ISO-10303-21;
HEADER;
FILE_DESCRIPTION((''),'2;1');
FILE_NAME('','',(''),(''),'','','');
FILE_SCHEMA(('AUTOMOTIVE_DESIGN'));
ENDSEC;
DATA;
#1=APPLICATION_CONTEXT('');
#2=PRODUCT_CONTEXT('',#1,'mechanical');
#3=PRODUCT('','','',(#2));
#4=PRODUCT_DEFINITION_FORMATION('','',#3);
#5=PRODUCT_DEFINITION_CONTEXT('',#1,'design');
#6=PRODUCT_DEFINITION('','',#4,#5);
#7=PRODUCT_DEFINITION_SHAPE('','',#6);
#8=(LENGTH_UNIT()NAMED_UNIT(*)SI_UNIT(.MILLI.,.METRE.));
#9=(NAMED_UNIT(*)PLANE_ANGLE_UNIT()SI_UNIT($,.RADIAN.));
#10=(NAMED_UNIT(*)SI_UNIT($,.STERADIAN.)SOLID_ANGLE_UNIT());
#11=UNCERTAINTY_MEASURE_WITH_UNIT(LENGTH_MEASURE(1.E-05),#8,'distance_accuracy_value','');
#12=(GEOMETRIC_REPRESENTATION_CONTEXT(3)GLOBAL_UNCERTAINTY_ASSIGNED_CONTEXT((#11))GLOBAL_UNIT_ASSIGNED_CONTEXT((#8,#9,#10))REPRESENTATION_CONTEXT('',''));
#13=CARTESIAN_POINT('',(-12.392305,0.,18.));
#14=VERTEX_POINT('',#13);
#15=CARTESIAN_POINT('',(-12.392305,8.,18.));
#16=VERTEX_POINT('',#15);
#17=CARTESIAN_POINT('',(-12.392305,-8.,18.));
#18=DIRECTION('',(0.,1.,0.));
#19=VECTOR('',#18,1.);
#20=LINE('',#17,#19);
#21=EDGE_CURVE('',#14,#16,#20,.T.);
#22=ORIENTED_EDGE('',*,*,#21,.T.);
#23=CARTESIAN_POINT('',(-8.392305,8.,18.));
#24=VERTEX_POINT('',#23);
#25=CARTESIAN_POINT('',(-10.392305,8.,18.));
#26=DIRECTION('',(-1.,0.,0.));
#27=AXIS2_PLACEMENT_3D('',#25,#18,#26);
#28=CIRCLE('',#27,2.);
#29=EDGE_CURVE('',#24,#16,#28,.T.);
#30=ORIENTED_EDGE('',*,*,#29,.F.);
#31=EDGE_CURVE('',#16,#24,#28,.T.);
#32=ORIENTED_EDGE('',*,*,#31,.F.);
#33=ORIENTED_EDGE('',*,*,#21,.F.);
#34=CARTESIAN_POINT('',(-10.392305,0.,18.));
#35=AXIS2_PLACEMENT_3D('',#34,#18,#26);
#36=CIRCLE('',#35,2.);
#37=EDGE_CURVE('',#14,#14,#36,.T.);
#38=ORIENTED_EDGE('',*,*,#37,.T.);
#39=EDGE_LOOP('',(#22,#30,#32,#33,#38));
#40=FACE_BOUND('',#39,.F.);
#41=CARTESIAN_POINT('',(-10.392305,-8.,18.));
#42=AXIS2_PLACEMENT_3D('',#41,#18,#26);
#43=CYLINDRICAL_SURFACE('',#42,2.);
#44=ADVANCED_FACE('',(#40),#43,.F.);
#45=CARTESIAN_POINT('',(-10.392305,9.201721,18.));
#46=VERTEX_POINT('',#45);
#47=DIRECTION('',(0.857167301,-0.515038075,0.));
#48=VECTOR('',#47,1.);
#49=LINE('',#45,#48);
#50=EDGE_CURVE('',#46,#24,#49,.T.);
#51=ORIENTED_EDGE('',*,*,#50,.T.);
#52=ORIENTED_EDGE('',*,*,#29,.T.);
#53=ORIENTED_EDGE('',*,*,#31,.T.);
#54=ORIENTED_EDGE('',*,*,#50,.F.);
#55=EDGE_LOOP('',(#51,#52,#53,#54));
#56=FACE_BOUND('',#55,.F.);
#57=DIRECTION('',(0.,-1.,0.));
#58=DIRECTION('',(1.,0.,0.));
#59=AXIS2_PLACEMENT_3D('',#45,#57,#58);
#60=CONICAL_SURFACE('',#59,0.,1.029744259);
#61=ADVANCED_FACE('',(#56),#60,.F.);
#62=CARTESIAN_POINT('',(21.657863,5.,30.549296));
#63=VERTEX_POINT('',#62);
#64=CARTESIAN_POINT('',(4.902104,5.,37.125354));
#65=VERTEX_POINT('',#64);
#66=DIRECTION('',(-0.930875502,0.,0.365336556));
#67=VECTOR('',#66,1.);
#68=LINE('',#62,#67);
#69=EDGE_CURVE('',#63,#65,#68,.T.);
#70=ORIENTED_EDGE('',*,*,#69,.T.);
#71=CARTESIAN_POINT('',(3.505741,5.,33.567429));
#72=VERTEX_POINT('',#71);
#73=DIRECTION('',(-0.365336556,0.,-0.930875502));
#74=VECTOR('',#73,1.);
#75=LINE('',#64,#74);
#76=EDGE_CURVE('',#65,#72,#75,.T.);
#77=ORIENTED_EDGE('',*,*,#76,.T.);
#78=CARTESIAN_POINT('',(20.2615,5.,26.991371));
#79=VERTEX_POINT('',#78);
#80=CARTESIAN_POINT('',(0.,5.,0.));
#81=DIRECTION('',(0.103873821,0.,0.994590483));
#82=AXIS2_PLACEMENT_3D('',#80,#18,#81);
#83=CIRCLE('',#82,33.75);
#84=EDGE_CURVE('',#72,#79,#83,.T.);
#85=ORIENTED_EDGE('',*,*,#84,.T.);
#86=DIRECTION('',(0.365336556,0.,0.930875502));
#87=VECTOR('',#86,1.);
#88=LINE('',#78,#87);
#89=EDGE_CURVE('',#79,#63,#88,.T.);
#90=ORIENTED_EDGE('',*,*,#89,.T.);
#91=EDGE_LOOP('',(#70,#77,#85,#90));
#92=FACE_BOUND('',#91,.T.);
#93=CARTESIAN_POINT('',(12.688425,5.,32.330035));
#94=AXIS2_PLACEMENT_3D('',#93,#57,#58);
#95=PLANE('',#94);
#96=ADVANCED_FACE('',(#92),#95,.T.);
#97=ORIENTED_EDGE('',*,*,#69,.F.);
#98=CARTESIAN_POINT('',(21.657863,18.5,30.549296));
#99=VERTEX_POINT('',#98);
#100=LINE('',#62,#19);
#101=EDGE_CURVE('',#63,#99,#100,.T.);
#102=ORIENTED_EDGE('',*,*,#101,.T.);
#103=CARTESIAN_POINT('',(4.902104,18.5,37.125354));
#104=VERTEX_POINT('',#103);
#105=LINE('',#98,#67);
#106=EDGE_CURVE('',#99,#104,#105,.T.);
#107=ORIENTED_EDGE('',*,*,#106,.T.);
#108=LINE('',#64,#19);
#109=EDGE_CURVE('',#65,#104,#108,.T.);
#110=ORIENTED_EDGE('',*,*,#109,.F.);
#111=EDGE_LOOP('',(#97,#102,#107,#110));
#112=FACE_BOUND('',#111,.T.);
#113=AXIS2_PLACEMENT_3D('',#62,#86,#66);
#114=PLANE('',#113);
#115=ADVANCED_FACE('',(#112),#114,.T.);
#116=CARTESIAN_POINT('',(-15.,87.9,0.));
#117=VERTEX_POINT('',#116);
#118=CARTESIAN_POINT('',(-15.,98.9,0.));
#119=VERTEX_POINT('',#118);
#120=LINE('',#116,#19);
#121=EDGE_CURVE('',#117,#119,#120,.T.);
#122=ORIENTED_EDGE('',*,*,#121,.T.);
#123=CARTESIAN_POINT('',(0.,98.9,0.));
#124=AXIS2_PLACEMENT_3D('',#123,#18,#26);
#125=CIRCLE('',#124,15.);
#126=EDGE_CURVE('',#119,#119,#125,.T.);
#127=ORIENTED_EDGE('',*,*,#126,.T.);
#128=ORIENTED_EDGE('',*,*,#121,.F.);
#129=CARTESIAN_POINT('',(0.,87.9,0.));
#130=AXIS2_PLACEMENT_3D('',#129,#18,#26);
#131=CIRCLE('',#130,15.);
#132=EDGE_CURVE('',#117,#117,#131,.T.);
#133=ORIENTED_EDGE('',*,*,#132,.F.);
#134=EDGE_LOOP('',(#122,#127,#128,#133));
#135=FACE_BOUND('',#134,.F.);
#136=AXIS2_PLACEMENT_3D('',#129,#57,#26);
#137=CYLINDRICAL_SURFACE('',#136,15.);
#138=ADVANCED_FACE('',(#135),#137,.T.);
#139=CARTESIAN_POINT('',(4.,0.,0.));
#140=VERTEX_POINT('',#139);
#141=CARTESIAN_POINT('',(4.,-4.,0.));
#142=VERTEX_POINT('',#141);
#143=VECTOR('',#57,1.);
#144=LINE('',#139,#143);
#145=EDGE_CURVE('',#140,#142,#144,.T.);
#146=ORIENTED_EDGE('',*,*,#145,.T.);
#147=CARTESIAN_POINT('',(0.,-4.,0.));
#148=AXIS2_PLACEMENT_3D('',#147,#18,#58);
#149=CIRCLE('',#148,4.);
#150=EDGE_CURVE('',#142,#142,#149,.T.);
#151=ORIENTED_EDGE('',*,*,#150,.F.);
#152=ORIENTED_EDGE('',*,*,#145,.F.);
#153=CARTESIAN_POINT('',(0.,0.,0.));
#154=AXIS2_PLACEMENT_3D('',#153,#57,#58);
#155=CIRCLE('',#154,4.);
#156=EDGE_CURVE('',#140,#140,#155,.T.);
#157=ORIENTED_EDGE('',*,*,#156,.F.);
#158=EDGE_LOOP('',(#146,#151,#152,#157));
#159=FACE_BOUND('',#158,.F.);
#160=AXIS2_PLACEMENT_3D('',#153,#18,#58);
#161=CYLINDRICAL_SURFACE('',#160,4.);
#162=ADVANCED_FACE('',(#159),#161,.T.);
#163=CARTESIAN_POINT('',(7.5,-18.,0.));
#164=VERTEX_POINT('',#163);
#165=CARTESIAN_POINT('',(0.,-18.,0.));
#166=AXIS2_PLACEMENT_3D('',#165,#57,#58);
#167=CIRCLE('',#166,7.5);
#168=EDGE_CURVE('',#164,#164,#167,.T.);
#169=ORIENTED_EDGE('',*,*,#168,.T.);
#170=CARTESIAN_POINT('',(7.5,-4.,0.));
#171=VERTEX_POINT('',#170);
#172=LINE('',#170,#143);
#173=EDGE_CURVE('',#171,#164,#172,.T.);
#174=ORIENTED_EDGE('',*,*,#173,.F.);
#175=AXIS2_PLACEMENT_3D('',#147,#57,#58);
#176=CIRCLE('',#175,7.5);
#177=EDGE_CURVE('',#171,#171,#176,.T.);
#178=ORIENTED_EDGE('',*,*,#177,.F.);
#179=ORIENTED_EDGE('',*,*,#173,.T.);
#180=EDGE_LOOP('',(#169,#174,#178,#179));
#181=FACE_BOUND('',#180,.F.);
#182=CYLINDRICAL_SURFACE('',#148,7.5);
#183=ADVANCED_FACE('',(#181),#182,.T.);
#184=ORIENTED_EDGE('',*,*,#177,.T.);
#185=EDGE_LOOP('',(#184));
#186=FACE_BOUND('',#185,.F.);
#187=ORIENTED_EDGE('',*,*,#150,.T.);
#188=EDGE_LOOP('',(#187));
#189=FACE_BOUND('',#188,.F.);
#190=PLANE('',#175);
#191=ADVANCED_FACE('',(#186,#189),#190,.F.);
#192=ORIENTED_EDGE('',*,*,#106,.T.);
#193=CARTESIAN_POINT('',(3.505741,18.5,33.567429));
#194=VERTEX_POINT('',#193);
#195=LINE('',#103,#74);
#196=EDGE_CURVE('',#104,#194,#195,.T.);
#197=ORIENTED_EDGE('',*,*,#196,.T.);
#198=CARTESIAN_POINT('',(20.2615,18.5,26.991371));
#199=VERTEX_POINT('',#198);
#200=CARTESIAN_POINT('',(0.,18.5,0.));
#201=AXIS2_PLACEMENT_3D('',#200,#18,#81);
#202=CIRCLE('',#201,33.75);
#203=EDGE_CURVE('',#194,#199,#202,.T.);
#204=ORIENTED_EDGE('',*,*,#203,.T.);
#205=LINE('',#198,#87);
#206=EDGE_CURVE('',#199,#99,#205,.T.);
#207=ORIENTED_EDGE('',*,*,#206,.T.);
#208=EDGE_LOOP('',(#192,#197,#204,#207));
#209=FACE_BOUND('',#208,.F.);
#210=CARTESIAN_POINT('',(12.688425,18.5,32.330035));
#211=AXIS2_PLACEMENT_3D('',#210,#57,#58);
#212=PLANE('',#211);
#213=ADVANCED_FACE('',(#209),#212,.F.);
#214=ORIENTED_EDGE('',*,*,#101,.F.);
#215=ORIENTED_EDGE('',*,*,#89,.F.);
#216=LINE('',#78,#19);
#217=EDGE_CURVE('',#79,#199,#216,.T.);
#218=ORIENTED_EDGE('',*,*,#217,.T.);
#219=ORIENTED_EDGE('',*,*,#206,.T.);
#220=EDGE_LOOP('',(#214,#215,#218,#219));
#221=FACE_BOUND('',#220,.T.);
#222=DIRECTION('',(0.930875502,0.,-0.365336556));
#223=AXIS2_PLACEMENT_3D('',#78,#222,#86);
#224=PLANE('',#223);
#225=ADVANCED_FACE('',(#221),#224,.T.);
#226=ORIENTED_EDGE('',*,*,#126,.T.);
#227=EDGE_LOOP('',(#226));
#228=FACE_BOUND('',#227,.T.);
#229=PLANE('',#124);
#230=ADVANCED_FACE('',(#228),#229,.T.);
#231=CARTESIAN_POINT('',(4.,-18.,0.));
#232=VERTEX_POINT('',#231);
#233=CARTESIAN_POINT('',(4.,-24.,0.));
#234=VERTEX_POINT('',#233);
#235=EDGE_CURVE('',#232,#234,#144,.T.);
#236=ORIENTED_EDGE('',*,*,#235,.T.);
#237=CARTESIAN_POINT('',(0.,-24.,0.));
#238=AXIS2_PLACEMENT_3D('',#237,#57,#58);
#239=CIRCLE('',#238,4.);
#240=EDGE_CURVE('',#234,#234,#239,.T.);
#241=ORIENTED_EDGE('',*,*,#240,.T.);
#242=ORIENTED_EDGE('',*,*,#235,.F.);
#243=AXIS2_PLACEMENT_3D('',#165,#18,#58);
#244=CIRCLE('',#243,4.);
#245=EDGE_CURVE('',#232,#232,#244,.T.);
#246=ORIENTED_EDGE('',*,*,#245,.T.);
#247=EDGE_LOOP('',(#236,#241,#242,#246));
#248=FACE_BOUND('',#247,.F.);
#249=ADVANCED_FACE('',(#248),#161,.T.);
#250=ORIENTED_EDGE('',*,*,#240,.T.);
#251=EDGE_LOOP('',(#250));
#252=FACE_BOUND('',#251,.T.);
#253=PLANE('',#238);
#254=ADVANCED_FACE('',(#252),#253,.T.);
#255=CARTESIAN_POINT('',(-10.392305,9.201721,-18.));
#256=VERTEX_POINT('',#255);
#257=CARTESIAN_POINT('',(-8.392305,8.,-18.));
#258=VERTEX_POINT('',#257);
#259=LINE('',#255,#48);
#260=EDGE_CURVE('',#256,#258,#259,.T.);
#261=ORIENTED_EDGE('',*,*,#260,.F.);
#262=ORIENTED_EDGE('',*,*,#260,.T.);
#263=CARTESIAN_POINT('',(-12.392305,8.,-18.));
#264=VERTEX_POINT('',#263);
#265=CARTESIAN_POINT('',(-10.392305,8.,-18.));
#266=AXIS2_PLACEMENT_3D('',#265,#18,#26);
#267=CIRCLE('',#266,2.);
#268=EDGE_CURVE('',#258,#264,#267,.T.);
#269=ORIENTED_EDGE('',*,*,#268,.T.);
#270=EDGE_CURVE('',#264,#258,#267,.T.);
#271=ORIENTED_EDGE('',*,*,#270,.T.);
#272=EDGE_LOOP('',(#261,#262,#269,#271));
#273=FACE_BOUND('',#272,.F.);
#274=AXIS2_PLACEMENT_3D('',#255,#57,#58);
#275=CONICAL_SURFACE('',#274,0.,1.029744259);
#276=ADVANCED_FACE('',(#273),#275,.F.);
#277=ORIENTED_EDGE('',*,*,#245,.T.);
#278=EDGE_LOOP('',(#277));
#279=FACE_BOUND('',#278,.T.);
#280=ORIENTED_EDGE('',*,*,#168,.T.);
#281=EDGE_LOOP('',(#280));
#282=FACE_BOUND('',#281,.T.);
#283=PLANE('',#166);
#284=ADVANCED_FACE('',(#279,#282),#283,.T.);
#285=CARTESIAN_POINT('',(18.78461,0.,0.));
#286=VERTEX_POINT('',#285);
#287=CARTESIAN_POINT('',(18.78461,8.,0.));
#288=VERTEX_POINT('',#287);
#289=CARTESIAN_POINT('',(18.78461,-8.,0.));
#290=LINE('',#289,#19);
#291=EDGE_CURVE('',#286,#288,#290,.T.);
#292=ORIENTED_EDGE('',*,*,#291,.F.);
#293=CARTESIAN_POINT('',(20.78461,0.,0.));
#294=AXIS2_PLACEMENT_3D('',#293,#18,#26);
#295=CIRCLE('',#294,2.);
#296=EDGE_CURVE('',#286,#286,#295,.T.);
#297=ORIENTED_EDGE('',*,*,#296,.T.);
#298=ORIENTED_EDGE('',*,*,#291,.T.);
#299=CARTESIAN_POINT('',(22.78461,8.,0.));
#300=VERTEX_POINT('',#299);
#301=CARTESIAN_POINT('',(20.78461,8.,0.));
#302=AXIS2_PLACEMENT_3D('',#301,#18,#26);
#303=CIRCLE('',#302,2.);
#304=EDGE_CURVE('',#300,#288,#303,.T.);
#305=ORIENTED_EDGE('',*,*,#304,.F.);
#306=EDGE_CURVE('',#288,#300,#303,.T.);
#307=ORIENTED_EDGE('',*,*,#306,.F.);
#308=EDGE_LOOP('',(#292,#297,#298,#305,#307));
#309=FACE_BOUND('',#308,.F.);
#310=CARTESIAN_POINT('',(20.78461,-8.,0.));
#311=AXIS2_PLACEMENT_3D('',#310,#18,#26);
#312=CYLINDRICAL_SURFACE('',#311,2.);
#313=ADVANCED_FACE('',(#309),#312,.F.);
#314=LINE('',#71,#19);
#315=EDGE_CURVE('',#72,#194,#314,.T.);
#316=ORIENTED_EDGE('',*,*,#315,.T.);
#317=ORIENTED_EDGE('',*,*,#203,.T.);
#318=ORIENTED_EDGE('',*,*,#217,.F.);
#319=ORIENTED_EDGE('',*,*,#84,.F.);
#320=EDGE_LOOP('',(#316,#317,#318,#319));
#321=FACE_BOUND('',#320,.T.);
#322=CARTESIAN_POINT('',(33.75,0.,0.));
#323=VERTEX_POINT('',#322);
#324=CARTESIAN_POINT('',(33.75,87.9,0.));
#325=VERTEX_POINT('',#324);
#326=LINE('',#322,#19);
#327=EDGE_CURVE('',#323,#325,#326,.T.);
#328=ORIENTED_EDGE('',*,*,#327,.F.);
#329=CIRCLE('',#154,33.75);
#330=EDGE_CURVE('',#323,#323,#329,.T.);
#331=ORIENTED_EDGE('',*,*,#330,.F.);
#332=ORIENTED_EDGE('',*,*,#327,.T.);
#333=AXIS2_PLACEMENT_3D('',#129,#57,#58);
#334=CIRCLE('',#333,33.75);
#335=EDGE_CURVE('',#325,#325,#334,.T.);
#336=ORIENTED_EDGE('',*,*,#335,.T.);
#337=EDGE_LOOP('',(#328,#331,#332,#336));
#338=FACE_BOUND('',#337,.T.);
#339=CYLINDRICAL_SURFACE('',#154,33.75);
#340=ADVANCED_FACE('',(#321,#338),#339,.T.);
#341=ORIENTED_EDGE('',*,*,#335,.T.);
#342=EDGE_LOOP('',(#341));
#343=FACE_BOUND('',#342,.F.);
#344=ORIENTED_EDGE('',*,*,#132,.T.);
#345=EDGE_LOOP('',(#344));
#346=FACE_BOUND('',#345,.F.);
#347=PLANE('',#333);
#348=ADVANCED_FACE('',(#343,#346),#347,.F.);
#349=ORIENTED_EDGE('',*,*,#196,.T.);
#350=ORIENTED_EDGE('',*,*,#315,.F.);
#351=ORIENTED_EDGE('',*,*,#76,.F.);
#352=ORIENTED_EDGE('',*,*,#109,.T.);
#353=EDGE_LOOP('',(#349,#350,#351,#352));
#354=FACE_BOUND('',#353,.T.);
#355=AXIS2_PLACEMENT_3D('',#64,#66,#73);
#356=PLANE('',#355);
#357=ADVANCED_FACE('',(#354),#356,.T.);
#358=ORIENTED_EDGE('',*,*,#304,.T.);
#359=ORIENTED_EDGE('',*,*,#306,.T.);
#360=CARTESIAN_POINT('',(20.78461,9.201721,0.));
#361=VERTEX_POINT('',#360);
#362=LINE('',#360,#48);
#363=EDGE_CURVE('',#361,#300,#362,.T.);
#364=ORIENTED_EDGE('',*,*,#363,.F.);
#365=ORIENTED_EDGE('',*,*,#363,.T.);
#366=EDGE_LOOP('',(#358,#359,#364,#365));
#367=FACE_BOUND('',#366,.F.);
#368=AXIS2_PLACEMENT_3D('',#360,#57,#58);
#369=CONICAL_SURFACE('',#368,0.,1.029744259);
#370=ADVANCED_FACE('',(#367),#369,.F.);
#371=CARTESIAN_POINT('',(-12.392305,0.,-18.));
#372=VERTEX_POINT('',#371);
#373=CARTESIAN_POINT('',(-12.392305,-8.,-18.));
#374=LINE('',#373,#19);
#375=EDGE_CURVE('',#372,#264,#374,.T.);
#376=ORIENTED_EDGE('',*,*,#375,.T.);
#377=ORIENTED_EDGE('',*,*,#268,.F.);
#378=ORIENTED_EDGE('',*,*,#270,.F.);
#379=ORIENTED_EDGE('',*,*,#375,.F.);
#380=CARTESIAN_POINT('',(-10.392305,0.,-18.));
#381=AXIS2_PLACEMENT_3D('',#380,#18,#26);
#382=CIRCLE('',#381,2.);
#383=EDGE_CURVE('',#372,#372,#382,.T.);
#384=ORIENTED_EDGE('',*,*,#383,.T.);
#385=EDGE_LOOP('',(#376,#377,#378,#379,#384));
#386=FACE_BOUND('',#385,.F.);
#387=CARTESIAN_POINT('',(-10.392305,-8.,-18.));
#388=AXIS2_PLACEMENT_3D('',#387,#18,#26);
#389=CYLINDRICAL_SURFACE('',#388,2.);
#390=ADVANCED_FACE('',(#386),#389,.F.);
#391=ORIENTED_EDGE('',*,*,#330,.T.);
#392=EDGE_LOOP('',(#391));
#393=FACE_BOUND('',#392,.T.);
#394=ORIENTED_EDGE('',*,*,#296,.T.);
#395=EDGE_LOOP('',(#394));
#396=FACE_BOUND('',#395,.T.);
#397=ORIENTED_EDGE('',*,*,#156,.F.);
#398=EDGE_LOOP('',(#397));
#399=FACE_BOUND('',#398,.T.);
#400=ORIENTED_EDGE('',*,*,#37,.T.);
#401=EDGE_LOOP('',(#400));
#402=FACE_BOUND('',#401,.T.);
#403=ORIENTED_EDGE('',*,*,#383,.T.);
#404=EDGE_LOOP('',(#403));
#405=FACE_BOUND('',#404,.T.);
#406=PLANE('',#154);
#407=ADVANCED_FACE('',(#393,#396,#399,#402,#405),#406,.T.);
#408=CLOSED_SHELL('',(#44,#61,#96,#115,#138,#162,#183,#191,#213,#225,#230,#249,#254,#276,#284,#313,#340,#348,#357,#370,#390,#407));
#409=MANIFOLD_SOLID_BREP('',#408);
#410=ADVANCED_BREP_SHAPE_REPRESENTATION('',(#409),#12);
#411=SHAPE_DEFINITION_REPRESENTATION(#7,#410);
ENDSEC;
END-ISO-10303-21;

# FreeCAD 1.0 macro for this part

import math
import FreeCAD as App
import Part
import Sketcher

V = App.Vector
Q = App.Units.Quantity

doc = App.newDocument("Part")
body = doc.addObject("PartDesign::Body", "Body")

# Sketch on XZ plane
sketch1 = body.newObject("Sketcher::SketchObject", "Sketch")
sketch1.AttachmentSupport = (doc.getObject("XZ_Plane"), [""])
sketch1.MapMode = "FlatFace"
sketch1.addGeometry(Part.Circle(V(0, 0, 0), V(0, 0, 1), 34), False)
sketch1.addConstraint(Sketcher.Constraint("Coincident", 0, 3, -1, 1))
sketch1.addConstraint(Sketcher.Constraint("Diameter", 0, Q("67.5 mm")))
pad1 = body.newObject("PartDesign::Pad", "Pad")
pad1.Profile = sketch1
pad1.Length = 87.9
pad1.Reversed = True

# Sketch on XZ plane
sketch2 = body.newObject("Sketcher::SketchObject", "Sketch001")
sketch2.AttachmentSupport = (doc.getObject("XZ_Plane"), [""])
sketch2.MapMode = "FlatFace"
sketch2.AttachmentOffset = App.Placement(V(0, 0, -87.9), App.Rotation())
sketch2.addGeometry(Part.Circle(V(0, 0, 0), V(0, 0, 1), 15), False)
sketch2.addConstraint(Sketcher.Constraint("Coincident", 0, 3, -1, 1))
sketch2.addConstraint(Sketcher.Constraint("Diameter", 0, Q("30 mm")))
pad2 = body.newObject("PartDesign::Pad", "Pad001")
pad2.Profile = sketch2
pad2.Length = 11
pad2.Reversed = True

# Sketch on XZ plane
sketch3 = body.newObject("Sketcher::SketchObject", "Sketch002")
sketch3.AttachmentSupport = (doc.getObject("XZ_Plane"), [""])
sketch3.MapMode = "FlatFace"
sketch3.addGeometry(Part.Circle(V(0, 0, 0), V(0, 0, 1), 4), False)
sketch3.addConstraint(Sketcher.Constraint("Coincident", 0, 3, -1, 1))
sketch3.addConstraint(Sketcher.Constraint("Diameter", 0, Q("8 mm")))
pad3 = body.newObject("PartDesign::Pad", "Pad002")
pad3.Profile = sketch3
pad3.Length = 24

# Sketch on XZ plane
sketch4 = body.newObject("Sketcher::SketchObject", "Sketch003")
sketch4.AttachmentSupport = (doc.getObject("XZ_Plane"), [""])
sketch4.MapMode = "FlatFace"
sketch4.addGeometry(Part.Circle(V(20.8, 0, 0), V(0, 0, 1), 2), False)
sketch4.addGeometry(Part.Circle(V(-10.4, 18, 0), V(0, 0, 1), 2), False)
sketch4.addGeometry(Part.Circle(V(-10.4, -18, 0), V(0, 0, 1), 2), False)
sketch4.addConstraint(Sketcher.Constraint("Equal", 0, 1))
sketch4.addConstraint(Sketcher.Constraint("Equal", 1, 2))
sketch4.addConstraint(Sketcher.Constraint("Symmetric", 1, 3, 2, 3, -1))
sketch4.addConstraint(Sketcher.Constraint("PointOnObject", 0, 3, -1))
sketch4.addConstraint(Sketcher.Constraint("Diameter", 0, Q("4 mm")))
sketch4.addConstraint(Sketcher.Constraint("DistanceY", -1, 1, 1, 3, Q("18 mm")))
sketch4.addConstraint(Sketcher.Constraint("DistanceX", -1, 1, 0, 3, Q("20.78461 mm")))
sketch4.addConstraint(Sketcher.Constraint("DistanceX", 1, 3, -1, 1, Q("10.392305 mm")))
doc.recompute()
hole = body.newObject("PartDesign::Hole", "Hole")
hole.Profile = sketch4
hole.ThreadType = "None"
hole.Diameter = 4
hole.DepthType = "Dimension"
hole.Depth = 8
hole.DrillPoint = "Angled"
hole.DrillPointAngle = 118

# Sketch on XZ plane
sketch5 = body.newObject("Sketcher::SketchObject", "Sketch004")
sketch5.AttachmentSupport = (doc.getObject("XZ_Plane"), [""])
sketch5.MapMode = "FlatFace"
sketch5.AttachmentOffset = App.Placement(V(0, 0, 4), App.Rotation())
sketch5.addGeometry(Part.Circle(V(0, 0, 0), V(0, 0, 1), 8), False)
sketch5.addConstraint(Sketcher.Constraint("Coincident", 0, 3, -1, 1))
sketch5.addConstraint(Sketcher.Constraint("Diameter", 0, Q("15 mm")))
pad4 = body.newObject("PartDesign::Pad", "Pad003")
pad4.Profile = sketch5
pad4.Length = 14

# Sketch on XZ plane
sketch6 = body.newObject("Sketcher::SketchObject", "Sketch005")
sketch6.AttachmentSupport = (doc.getObject("XZ_Plane"), [""])
sketch6.MapMode = "FlatFace"
sketch6.AttachmentOffset = App.Placement(V(0, 0, -5), App.Rotation())
sketch6.addGeometry(Part.LineSegment(V(20.3, 27, 0), V(21.7, 30.5, 0)), False)
sketch6.addGeometry(Part.LineSegment(V(21.7, 30.5, 0), V(4.9, 37.1, 0)), False)
sketch6.addGeometry(Part.LineSegment(V(4.9, 37.1, 0), V(3.5, 33.6, 0)), False)
sketch6.addGeometry(Part.ArcOfCircle(Part.Circle(V(0, 0, 0), V(0, 0, 1), 33.8), math.radians(53), math.radians(84)), False)
sketch6.addConstraint(Sketcher.Constraint("Coincident", 0, 2, 1, 1))
sketch6.addConstraint(Sketcher.Constraint("Coincident", 1, 2, 2, 1))
sketch6.addConstraint(Sketcher.Constraint("Coincident", 2, 2, 3, 2))
sketch6.addConstraint(Sketcher.Constraint("Coincident", 3, 1, 0, 1))
sketch6.addConstraint(Sketcher.Constraint("Coincident", 3, 3, -1, 1))
sketch6.addConstraint(Sketcher.Constraint("Perpendicular", 0, 1))
sketch6.addConstraint(Sketcher.Constraint("Perpendicular", 1, 2))
sketch6.addConstraint(Sketcher.Constraint("Equal", 0, 2))
sketch6.addConstraint(Sketcher.Constraint("Radius", 3, Q("33.75 mm")))
sketch6.addConstraint(Sketcher.Constraint("Distance", 1, Q("18 mm")))
sketch6.addConstraint(Sketcher.Constraint("DistanceX", -1, 1, 3, 1, Q("20.2615 mm")))
sketch6.addConstraint(Sketcher.Constraint("DistanceX", 2, 2, 0, 2, Q("18.152122 mm")))
pad5 = body.newObject("PartDesign::Pad", "Pad004")
pad5.Profile = sketch6
pad5.Length = 13.5
pad5.Reversed = True

doc.recompute()
